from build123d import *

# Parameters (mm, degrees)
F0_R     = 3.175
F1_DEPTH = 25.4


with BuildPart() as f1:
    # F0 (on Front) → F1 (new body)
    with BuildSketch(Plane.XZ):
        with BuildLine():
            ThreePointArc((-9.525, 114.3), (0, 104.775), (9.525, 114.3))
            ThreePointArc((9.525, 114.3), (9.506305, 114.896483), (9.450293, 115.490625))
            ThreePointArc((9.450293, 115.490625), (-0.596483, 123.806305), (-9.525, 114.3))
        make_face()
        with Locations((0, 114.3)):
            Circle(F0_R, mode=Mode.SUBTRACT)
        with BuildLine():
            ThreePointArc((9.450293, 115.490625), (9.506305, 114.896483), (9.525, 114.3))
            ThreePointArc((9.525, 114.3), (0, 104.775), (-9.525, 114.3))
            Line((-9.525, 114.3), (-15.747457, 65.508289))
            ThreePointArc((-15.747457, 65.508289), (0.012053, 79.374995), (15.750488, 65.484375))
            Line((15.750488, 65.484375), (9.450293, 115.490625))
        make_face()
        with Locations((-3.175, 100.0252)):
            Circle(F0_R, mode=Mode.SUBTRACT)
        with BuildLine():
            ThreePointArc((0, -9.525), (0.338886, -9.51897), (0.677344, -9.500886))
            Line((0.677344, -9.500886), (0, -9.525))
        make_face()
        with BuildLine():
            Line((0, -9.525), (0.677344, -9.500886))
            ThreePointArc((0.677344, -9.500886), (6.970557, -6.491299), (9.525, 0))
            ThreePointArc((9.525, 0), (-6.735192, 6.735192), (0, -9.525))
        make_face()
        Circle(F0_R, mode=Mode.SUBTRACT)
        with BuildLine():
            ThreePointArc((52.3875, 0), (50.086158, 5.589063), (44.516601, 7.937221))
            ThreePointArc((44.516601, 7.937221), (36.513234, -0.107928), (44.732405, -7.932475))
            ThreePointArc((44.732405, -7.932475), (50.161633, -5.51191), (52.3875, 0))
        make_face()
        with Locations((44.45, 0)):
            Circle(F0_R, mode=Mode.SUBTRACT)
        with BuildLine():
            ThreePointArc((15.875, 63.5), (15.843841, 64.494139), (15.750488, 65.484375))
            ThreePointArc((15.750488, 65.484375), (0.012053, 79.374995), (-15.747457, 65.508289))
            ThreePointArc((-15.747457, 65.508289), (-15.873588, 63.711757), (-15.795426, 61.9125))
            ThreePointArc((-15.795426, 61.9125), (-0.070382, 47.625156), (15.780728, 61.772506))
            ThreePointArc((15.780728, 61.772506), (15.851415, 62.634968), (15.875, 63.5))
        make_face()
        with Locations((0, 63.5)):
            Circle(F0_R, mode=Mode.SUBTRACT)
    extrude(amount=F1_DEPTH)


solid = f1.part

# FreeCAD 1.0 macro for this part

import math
import FreeCAD as App
import Part
import Sketcher
Q = App.Units.Quantity

doc = App.newDocument("Part")
params = doc.addObject("Spreadsheet::Sheet", "Params")
for row, (alias, value) in enumerate([
    ("sketch1_diameter", "0.25 in"),
    ("sketch1_diameter2", "0.25 in"),
    ("sketch1_diameter3", "0.25 in"),
    ("sketch1_diameter4", "0.25 in"),
    ("sketch1_diameter5", "0.25 in"),
    ("pad1_length", "1 in"),
], start=1):
    params.set(f"A{row}", alias)
    params.set(f"B{row}", "=" + value)
    params.setAlias(f"B{row}", alias)

body = doc.addObject("PartDesign::Body", "Body")
body.AllowCompound = True

# Sketch on XZ plane
sketch1 = body.newObject("Sketcher::SketchObject", "Sketch")
sketch1.AttachmentSupport = (doc.getObject("XZ_Plane"), [""])
sketch1.MapMode = "FlatFace"
sketch1.addGeometry([
    Part.ArcOfCircle(Part.Circle(App.Vector(0, 114.3, 0), App.Vector(0, 0, 1), 9.525), math.radians(7.180755), math.radians(180)),  # 0
    Part.LineSegment(App.Vector(-9.525, 114.3, 0), App.Vector(-15.747457, 65.508289, 0)),  # 1
    Part.ArcOfCircle(Part.Circle(App.Vector(-0.000021, 63.499999, 0), App.Vector(0, 0, 1), 15.874979), math.radians(172.732229), math.radians(185.739173)),  # 2
    Part.ArcOfCircle(Part.Circle(App.Vector(0, 63.5, 0), App.Vector(0, 0, 1), 15.875), math.radians(-174.26083), math.radians(-6.247213)),  # 3
    Part.ArcOfCircle(Part.Circle(App.Vector(0.000413, 63.499981, 0), App.Vector(0, 0, 1), 15.874587), math.radians(-6.247308), math.radians(0.000067)),  # 4
    Part.ArcOfCircle(Part.Circle(App.Vector(-0.000171, 63.499987, 0), App.Vector(0, 0, 1), 15.875171), math.radians(0.000047), math.radians(7.180725)),  # 5
    Part.LineSegment(App.Vector(15.750488, 65.484375, 0), App.Vector(9.450293, 115.490625, 0)),  # 6
    Part.Circle(App.Vector(0, 63.5, 0), App.Vector(0, 0, 1), 3.175),  # 7
    Part.Circle(App.Vector(-3.175, 100.0252, 0), App.Vector(0, 0, 1), 3.175),  # 8
    Part.Circle(App.Vector(0, 114.3, 0), App.Vector(0, 0, 1), 3.175),  # 9
    Part.ArcOfCircle(Part.Circle(App.Vector(0.000022, -0.000517, 0), App.Vector(0, 0, 1), 9.524483), math.radians(-90.000132), math.radians(-85.922038)),  # 10
    Part.ArcOfCircle(Part.Circle(App.Vector(0, 0, 0), App.Vector(0, 0, 1), 9.525), math.radians(-85.922127), math.radians(0.000001)),  # 11
    Part.ArcOfCircle(Part.Circle(App.Vector(0, 0, 0), App.Vector(0, 0, 1), 9.525), math.radians(0), math.radians(270)),  # 12
    Part.Circle(App.Vector(0, 0, 0), App.Vector(0, 0, 1), 3.175),  # 13
    Part.ArcOfCircle(Part.Circle(App.Vector(44.449999, -0.000001, 0), App.Vector(0, 0, 1), 7.937501), math.radians(0.000007), math.radians(89.519234)),  # 14
    Part.ArcOfCircle(Part.Circle(App.Vector(44.450001, 0, 0), App.Vector(0, 0, 1), 7.9375), math.radians(89.519248), math.radians(272.038929)),  # 15
    Part.ArcOfCircle(Part.Circle(App.Vector(44.449999, 0.000001, 0), App.Vector(0, 0, 1), 7.937501), math.radians(-87.961059), math.radians(-0.000005)),  # 16
    Part.Circle(App.Vector(44.45, 0, 0), App.Vector(0, 0, 1), 3.175),  # 17
], False)
sketch1.addConstraint([
    Sketcher.Constraint("Coincident", 0, 2, 1, 1),
    Sketcher.Constraint("Coincident", 1, 2, 2, 1),
    Sketcher.Constraint("Coincident", 2, 2, 3, 1),
    Sketcher.Constraint("Coincident", 3, 2, 4, 1),
    Sketcher.Constraint("Coincident", 4, 2, 5, 1),
    Sketcher.Constraint("Coincident", 5, 2, 6, 1),
    Sketcher.Constraint("Coincident", 6, 2, 0, 1),
    Sketcher.Constraint("Coincident", 10, 2, 11, 1),
    Sketcher.Constraint("Coincident", 11, 2, 12, 1),
    Sketcher.Constraint("Coincident", 12, 2, 10, 1),
    Sketcher.Constraint("Coincident", 14, 2, 15, 1),
    Sketcher.Constraint("Coincident", 15, 2, 16, 1),
    Sketcher.Constraint("Coincident", 16, 2, 14, 1),
    Sketcher.Constraint("Coincident", 11, 3, -1, 1),
    Sketcher.Constraint("Coincident", 12, 3, -1, 1),
    Sketcher.Constraint("Coincident", 13, 3, -1, 1),
    Sketcher.Constraint("Coincident", 7, 3, 3, 3),
    Sketcher.Constraint("Coincident", 9, 3, 0, 3),
    Sketcher.Constraint("Coincident", 15, 3, 14, 3),
    Sketcher.Constraint("Coincident", 17, 3, 14, 3),
    Sketcher.Constraint("PointOnObject", 0, 3, -2),
    Sketcher.Constraint("PointOnObject", 3, 3, -2),
    Sketcher.Constraint("PointOnObject", 14, 3, -1),
    Sketcher.Constraint("PointOnObject", 16, 3, -1),
    Sketcher.Constraint("PointOnObject", 11, 2, -1),
    Sketcher.Constraint("PointOnObject", 12, 2, -2),
    Sketcher.Constraint("PointOnObject", 16, 2, -1),
    Sketcher.Constraint("Diameter", 7, Q("0.25 in")),
    Sketcher.Constraint("Diameter", 8, Q("0.25 in")),
    Sketcher.Constraint("Diameter", 9, Q("0.25 in")),
    Sketcher.Constraint("Diameter", 13, Q("0.25 in")),
    Sketcher.Constraint("Diameter", 17, Q("0.25 in")),
    Sketcher.Constraint("Radius", 0, Q("0.375 in")),
    Sketcher.Constraint("Radius", 3, Q("0.625 in")),
    Sketcher.Constraint("Radius", 11, Q("0.375 in")),
    Sketcher.Constraint("Radius", 14, Q("0.3125001 in")),
    Sketcher.Constraint("DistanceY", 2, 3, 0, 3, Q("2.0000001 in")),
    Sketcher.Constraint("DistanceY", 3, 3, 0, 3, Q("2 in")),
    Sketcher.Constraint("DistanceY", 2, 3, 0, 2, Q("2.0000001 in")),
    Sketcher.Constraint("DistanceY", -1, 1, 0, 3, Q("4.5 in")),
    Sketcher.Constraint("DistanceY", -1, 1, 4, 2, Q("2.5 in")),
    Sketcher.Constraint("DistanceX", -1, 1, 14, 3, Q("1.7499999 in")),
    Sketcher.Constraint("DistanceX", 0, 2, 8, 3, Q("0.25 in")),
    Sketcher.Constraint("DistanceY", -1, 1, 8, 3, Q("3.938 in")),
    Sketcher.Constraint("DistanceY", -1, 1, 2, 2, Q("2.4375 in")),
    Sketcher.Constraint("DistanceX", -1, 1, 4, 2, Q("0.625 in")),
    Sketcher.Constraint("DistanceY", -1, 1, 5, 2, Q("2.578125 in")),
    Sketcher.Constraint("DistanceY", -1, 1, 6, 2, Q("4.546875 in")),
    Sketcher.Constraint("Radius", 2, 15.874979),
    Sketcher.Constraint("Radius", 5, 15.875171),
    Sketcher.Constraint("Radius", 4, 15.874587),
    Sketcher.Constraint("Radius", 10, 9.524483),
    Sketcher.Constraint("DistanceX", -1, 1, 14, 2, 44.516601),
    Sketcher.Constraint("DistanceY", 5, 3, 1, 2, 2.008302),
    Sketcher.Constraint("DistanceX", 5, 3, 3, 2, 15.780899),
    Sketcher.Constraint("Distance", 1, 49.186889),
    Sketcher.Constraint("DistanceY", 10, 2, 10, 3, 9.500369),
    Sketcher.Constraint("DistanceX", -1, 1, 15, 2, 44.732405),
])
sketch1.setExpression("Constraints[27]", "Params.sketch1_diameter")
sketch1.setExpression("Constraints[28]", "Params.sketch1_diameter2")
sketch1.setExpression("Constraints[29]", "Params.sketch1_diameter3")
sketch1.setExpression("Constraints[30]", "Params.sketch1_diameter4")
sketch1.setExpression("Constraints[31]", "Params.sketch1_diameter5")
pad1 = body.newObject("PartDesign::Pad", "Pad")
pad1.Profile = sketch1
pad1.setExpression("Length", "Params.pad1_length")

doc.recompute()
